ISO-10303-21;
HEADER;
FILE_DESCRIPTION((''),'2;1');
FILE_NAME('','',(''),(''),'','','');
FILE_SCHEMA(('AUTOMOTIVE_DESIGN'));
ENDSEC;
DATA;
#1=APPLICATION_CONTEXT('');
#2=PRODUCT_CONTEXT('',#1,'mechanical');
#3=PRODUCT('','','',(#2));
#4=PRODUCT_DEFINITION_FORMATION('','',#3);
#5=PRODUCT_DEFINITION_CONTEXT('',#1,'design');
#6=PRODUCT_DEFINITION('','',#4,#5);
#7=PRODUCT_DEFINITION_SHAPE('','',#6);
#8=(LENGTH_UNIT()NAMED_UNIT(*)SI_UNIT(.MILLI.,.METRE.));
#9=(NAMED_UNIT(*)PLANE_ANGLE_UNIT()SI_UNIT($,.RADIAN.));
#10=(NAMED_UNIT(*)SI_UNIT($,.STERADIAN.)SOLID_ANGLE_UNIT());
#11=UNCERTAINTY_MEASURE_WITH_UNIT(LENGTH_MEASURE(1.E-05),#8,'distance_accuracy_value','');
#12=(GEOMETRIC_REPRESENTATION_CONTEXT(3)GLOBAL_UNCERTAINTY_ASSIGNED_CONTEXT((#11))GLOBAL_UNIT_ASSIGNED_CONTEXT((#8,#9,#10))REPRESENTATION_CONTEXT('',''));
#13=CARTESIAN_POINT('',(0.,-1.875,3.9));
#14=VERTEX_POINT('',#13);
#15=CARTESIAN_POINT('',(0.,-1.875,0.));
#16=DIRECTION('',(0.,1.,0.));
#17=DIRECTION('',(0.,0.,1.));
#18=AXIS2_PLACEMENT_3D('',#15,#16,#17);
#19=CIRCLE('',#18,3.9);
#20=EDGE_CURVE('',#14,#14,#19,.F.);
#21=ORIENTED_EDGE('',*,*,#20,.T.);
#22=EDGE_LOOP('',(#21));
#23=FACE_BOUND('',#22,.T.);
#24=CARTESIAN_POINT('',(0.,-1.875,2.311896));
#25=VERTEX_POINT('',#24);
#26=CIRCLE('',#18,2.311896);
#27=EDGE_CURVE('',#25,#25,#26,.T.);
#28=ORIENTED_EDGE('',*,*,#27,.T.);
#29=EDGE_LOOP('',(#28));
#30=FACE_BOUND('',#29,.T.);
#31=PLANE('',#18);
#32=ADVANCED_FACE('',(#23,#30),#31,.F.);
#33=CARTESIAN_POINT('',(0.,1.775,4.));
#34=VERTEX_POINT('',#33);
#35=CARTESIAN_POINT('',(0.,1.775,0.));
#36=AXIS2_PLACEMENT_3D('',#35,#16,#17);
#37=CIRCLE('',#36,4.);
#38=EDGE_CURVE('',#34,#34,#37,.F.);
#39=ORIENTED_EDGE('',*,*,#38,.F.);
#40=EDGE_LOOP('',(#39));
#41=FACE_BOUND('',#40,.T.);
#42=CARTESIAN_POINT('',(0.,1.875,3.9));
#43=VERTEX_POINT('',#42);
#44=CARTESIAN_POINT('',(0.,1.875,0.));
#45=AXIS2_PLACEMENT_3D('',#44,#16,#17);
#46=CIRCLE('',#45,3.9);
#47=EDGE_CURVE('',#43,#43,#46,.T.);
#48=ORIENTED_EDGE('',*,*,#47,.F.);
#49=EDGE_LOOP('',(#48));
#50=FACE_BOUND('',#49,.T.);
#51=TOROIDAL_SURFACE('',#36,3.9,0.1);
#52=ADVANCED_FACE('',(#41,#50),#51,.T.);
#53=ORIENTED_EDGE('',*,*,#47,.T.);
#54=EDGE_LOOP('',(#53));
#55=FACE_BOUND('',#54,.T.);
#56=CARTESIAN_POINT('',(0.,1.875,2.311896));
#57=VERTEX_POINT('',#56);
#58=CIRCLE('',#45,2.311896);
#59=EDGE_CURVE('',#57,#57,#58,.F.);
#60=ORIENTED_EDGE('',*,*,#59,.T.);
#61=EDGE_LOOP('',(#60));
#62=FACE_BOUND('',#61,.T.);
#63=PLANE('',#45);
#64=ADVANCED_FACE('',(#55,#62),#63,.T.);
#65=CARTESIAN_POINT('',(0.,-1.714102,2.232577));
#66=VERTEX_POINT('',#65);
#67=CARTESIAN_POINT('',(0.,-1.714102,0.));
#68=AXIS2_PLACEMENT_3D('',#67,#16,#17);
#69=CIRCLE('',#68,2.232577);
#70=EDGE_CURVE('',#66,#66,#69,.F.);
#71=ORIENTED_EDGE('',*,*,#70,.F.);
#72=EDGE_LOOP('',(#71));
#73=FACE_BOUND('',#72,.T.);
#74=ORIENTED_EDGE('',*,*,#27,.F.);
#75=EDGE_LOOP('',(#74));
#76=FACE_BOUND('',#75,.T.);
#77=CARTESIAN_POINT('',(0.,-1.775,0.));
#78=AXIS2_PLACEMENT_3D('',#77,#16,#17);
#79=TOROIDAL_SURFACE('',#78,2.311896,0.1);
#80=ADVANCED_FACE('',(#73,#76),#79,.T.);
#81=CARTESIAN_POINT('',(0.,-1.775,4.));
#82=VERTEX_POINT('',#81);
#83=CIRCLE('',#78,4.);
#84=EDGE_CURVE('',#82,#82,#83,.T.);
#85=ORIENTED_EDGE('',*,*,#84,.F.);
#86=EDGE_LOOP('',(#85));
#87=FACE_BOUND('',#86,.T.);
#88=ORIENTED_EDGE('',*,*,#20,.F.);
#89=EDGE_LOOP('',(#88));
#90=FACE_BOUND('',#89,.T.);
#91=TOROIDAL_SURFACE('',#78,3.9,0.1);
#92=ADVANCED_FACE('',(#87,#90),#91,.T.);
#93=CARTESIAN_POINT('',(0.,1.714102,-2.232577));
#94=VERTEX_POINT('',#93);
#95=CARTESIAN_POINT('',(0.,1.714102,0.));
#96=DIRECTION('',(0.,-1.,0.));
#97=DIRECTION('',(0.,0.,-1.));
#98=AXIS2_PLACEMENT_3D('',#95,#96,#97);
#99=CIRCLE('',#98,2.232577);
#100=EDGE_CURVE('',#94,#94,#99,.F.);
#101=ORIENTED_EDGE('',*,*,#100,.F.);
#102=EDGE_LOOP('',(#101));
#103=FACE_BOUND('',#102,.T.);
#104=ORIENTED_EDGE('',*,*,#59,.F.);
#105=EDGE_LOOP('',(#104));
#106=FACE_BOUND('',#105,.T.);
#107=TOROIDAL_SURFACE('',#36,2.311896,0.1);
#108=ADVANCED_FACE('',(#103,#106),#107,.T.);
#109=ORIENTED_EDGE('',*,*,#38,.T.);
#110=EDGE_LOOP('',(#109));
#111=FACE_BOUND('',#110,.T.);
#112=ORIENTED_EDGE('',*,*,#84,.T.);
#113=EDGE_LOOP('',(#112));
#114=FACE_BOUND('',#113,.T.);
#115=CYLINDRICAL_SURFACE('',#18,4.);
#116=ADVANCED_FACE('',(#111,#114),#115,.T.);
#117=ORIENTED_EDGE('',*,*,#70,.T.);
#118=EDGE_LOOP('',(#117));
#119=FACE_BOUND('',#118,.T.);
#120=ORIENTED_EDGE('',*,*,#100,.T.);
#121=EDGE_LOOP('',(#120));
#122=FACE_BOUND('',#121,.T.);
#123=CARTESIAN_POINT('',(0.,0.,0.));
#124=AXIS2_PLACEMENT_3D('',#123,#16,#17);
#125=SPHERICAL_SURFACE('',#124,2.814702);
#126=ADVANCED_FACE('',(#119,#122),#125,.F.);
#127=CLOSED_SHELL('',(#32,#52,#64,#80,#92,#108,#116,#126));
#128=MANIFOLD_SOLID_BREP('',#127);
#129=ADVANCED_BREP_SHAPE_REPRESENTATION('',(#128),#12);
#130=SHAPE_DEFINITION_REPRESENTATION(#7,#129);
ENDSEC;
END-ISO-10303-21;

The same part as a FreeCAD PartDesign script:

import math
import FreeCAD as App
import Part
import Sketcher
from FreeCAD import Vector


def edges_at(feature, points):
    """Names of the edges that pass closest to the given points."""
    edges = feature.Shape.Edges
    near = lambda p: min(range(len(edges)), key=lambda i: edges[i].distToShape(Part.Vertex(*p))[0])
    return sorted({f"Edge{near(p) + 1}" for p in points})

doc = App.newDocument("Part")
body = doc.addObject("PartDesign::Body", "Body")

sketch1 = body.newObject("Sketcher::SketchObject", "Sketch")
sketch1.AttachmentSupport = (doc.getObject("XZ_Plane"), [""])
sketch1.MapMode = "FlatFace"
sketch1.addGeometry(Part.Circle(Vector(0, 0, 0), Vector(0, 0, 1), 4), False)
sketch1.addGeometry(Part.Circle(Vector(0, 0, 0), Vector(0, 0, 1), 2), False)
sketch1.addConstraint(Sketcher.Constraint("Coincident", 0, 3, -1, 1))
sketch1.addConstraint(Sketcher.Constraint("Coincident", 1, 3, -1, 1))
sketch1.addConstraint(Sketcher.Constraint("Diameter", 0, 8.0))
sketch1.addConstraint(Sketcher.Constraint("Diameter", 1, 4.0))
pad1 = body.newObject("PartDesign::Pad", "Pad")
pad1.Profile = sketch1
pad1.Type = "TwoLengths"
pad1.Length = 1.875
pad1.Length2 = 1.875
pad1.Reversed = True
body2 = doc.addObject("PartDesign::Body", "Body001")

sketch2 = body2.newObject("Sketcher::SketchObject", "Sketch001")
sketch2.AttachmentSupport = (doc.getObject("XZ_Plane001"), [""])
sketch2.MapMode = "FlatFace"
sketch2.addGeometry(Part.LineSegment(Vector(0, 2.814702, 0), Vector(0, -2.814702, 0)), False)
sketch2.addGeometry(Part.ArcOfCircle(Part.Circle(Vector(0, 0, 0), Vector(0, 0, 1), 2.814702), math.radians(90), math.radians(270)), False)
sketch2.addConstraint(Sketcher.Constraint("Coincident", 0, 1, 1, 1))
sketch2.addConstraint(Sketcher.Constraint("Coincident", 1, 2, 0, 2))
sketch2.addConstraint(Sketcher.Constraint("Vertical", 0))
sketch2.addConstraint(Sketcher.Constraint("Coincident", 1, 3, -1, 1))
sketch2.addConstraint(Sketcher.Constraint("PointOnObject", 0, 1, -2))
sketch2.addConstraint(Sketcher.Constraint("Radius", 1, 2.814702))
revolution = body2.newObject("PartDesign::Revolution", "Revolution")
revolution.Profile = sketch2
revolution.ReferenceAxis = (sketch2, ["V_Axis"])
revolution.Angle = 360
doc.recompute()

boolean = body.newObject("PartDesign::Boolean", "Boolean")
boolean.Type = "Cut"
boolean.addObjects([body2])
doc.recompute()

fillet = body.newObject("PartDesign::Fillet", "Fillet")
fillet.Base = (boolean, edges_at(boolean, [
    (0, -1.875, -2.099),
    (0, 1.875, -2.099),
    (0, -1.875, -4),
    (0, 1.875, -4),
]))
fillet.Radius = 0.1

doc.recompute()
